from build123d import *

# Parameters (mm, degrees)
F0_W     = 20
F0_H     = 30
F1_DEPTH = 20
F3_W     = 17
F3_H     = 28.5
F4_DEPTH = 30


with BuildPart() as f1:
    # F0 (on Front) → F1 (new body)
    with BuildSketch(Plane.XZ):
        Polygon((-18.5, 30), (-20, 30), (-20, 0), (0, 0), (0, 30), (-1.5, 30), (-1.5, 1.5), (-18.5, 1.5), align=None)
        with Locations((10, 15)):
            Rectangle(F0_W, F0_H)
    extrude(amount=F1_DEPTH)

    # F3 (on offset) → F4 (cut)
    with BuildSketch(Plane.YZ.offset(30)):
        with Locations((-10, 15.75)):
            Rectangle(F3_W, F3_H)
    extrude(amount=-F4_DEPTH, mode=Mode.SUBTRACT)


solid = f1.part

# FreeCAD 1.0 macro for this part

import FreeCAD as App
import Part
import Sketcher
Q = App.Units.Quantity

doc = App.newDocument("Part")
body = doc.addObject("PartDesign::Body", "Body")

# Sketch on XZ plane
sketch1 = doc.addObject("Sketcher::SketchObject", "Sketch")
body.addObject(sketch1)
sketch1.AttachmentSupport = (doc.XZ_Plane, [""])
sketch1.MapMode = "FlatFace"
sketch1.addGeometry([
    Part.LineSegment(App.Vector(-18.5, 30, 0), App.Vector(-20, 30, 0)),  # 0
    Part.LineSegment(App.Vector(-20, 30, 0), App.Vector(-20, 0, 0)),  # 1
    Part.LineSegment(App.Vector(-20, 0, 0), App.Vector(20, 0, 0)),  # 2
    Part.LineSegment(App.Vector(20, 0, 0), App.Vector(20, 30, 0)),  # 3
    Part.LineSegment(App.Vector(20, 30, 0), App.Vector(-1.5, 30, 0)),  # 4
    Part.LineSegment(App.Vector(-1.5, 30, 0), App.Vector(-1.5, 1.5, 0)),  # 5
    Part.LineSegment(App.Vector(-1.5, 1.5, 0), App.Vector(-18.5, 1.5, 0)),  # 6
    Part.LineSegment(App.Vector(-18.5, 1.5, 0), App.Vector(-18.5, 30, 0)),  # 7
], False)
sketch1.addConstraint([
    Sketcher.Constraint("Coincident", 0, 2, 1, 1),
    Sketcher.Constraint("Coincident", 1, 2, 2, 1),
    Sketcher.Constraint("Coincident", 2, 2, 3, 1),
    Sketcher.Constraint("Coincident", 3, 2, 4, 1),
    Sketcher.Constraint("Coincident", 4, 2, 5, 1),
    Sketcher.Constraint("Coincident", 5, 2, 6, 1),
    Sketcher.Constraint("Coincident", 6, 2, 7, 1),
    Sketcher.Constraint("Coincident", 7, 2, 0, 1),
    Sketcher.Constraint("Horizontal", 0),
    Sketcher.Constraint("Vertical", 1),
    Sketcher.Constraint("Horizontal", 2),
    Sketcher.Constraint("Vertical", 3),
    Sketcher.Constraint("Horizontal", 4),
    Sketcher.Constraint("Vertical", 5),
    Sketcher.Constraint("Horizontal", 6),
    Sketcher.Constraint("Vertical", 7),
    Sketcher.Constraint("Symmetric", 1, 2, 2, 2, -1, 1),
    Sketcher.Constraint("Horizontal", 0, 2, 3, 2),
    Sketcher.Constraint("DistanceX", 2, 1, 2, 2, Q("40 mm")),
    Sketcher.Constraint("DistanceX", 6, 2, 6, 1, Q("17 mm")),
    Sketcher.Constraint("DistanceY", 1, 2, 1, 1, Q("30 mm")),
    Sketcher.Constraint("DistanceX", 0, 2, 0, 1, Q("1.5 mm")),
    Sketcher.Constraint("DistanceY", 5, 2, 5, 1, Q("28.5 mm")),
])
pad1 = doc.addObject("PartDesign::Pad", "Pad")
body.addObject(pad1)
pad1.Profile = sketch1
pad1.Length = 20

# Sketch on YZ plane
sketch2 = doc.addObject("Sketcher::SketchObject", "Sketch001")
body.addObject(sketch2)
sketch2.AttachmentSupport = (doc.YZ_Plane, [""])
sketch2.MapMode = "FlatFace"
sketch2.AttachmentOffset = App.Placement(App.Vector(0, 0, 30), App.Rotation())
sketch2.addGeometry([
    Part.LineSegment(App.Vector(-18, 30, 0), App.Vector(-18, 2, 0)),
    Part.LineSegment(App.Vector(-18, 2, 0), App.Vector(-2, 2, 0)),
    Part.LineSegment(App.Vector(-2, 2, 0), App.Vector(-2, 30, 0)),
    Part.LineSegment(App.Vector(-2, 30, 0), App.Vector(-18, 30, 0)),
], False)
sketch2.addConstraint([
    Sketcher.Constraint("Coincident", 0, 2, 1, 1),
    Sketcher.Constraint("Coincident", 1, 2, 2, 1),
    Sketcher.Constraint("Coincident", 2, 2, 3, 1),
    Sketcher.Constraint("Coincident", 3, 2, 0, 1),
    Sketcher.Constraint("Vertical", 0),
    Sketcher.Constraint("Horizontal", 1),
    Sketcher.Constraint("Vertical", 2),
    Sketcher.Constraint("Horizontal", 3),
    Sketcher.Constraint("DistanceX", 1, 1, 1, 2, Q("17 mm")),
    Sketcher.Constraint("DistanceY", 0, 2, 0, 1, Q("28.5 mm")),
    Sketcher.Constraint("DistanceY", -1, 1, 2, 2, Q("30 mm")),
    Sketcher.Constraint("DistanceX", 0, 2, -1, 1, Q("18.5 mm")),
])
pocket1 = doc.addObject("PartDesign::Pocket", "Pocket")
body.addObject(pocket1)
pocket1.Profile = sketch2
pocket1.Length = 30

doc.recompute()
